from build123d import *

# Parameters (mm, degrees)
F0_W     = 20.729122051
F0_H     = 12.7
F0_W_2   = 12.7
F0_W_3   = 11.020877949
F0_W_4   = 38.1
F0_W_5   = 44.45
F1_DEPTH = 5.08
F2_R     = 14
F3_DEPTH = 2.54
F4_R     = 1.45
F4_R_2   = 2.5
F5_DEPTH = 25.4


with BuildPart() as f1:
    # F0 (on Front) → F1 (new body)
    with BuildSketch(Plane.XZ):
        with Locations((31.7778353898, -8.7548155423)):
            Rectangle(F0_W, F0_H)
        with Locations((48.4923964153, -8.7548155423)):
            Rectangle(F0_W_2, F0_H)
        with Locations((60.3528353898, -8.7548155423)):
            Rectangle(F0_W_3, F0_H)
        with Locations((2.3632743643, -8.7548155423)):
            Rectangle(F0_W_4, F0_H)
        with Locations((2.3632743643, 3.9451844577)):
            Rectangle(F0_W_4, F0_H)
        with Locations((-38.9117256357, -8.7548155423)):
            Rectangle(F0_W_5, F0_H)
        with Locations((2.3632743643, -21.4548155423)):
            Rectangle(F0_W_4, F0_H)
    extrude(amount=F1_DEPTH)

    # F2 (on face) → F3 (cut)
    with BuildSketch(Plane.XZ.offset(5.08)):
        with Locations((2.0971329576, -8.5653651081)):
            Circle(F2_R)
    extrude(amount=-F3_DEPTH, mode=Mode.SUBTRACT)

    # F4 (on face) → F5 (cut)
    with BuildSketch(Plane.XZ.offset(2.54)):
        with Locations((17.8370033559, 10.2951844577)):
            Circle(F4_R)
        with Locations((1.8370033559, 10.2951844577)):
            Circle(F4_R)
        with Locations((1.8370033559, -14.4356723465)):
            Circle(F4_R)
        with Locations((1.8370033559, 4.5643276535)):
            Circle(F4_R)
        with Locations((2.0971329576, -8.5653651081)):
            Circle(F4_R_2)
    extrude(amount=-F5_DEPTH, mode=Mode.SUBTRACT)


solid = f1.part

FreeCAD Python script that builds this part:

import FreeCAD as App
import Part
import Sketcher

V = App.Vector
Q = App.Units.Quantity

doc = App.newDocument("Part")
body = doc.addObject("PartDesign::Body", "Body")

# Sketch on XZ plane
sketch1 = body.newObject("Sketcher::SketchObject", "Sketch")
sketch1.AttachmentSupport = (doc.getObject("XZ_Plane"), [""])
sketch1.MapMode = "FlatFace"
sketch1.addGeometry([
    Part.LineSegment(V(66, -15, 0), V(66, -2, 0)),  # 0
    Part.LineSegment(V(66, -2, 0), V(21, -2, 0)),  # 1
    Part.LineSegment(V(21, -2, 0), V(21, 10, 0)),  # 2
    Part.LineSegment(V(21, 10, 0), V(-17, 10, 0)),  # 3
    Part.LineSegment(V(-17, 10, 0), V(-17, -2, 0)),  # 4
    Part.LineSegment(V(-17, -2, 0), V(-61, -2, 0)),  # 5
    Part.LineSegment(V(-61, -2, 0), V(-61, -15, 0)),  # 6
    Part.LineSegment(V(-61, -15, 0), V(-17, -15, 0)),  # 7
    Part.LineSegment(V(-17, -15, 0), V(-17, -28, 0)),  # 8
    Part.LineSegment(V(-17, -28, 0), V(21, -28, 0)),  # 9
    Part.LineSegment(V(21, -28, 0), V(21, -15, 0)),  # 10
    Part.LineSegment(V(21, -15, 0), V(66, -15, 0)),  # 11
], False)
sketch1.addConstraint([
    Sketcher.Constraint("Coincident", 0, 2, 1, 1),
    Sketcher.Constraint("Coincident", 1, 2, 2, 1),
    Sketcher.Constraint("Coincident", 2, 2, 3, 1),
    Sketcher.Constraint("Coincident", 3, 2, 4, 1),
    Sketcher.Constraint("Coincident", 4, 2, 5, 1),
    Sketcher.Constraint("Coincident", 5, 2, 6, 1),
    Sketcher.Constraint("Coincident", 6, 2, 7, 1),
    Sketcher.Constraint("Coincident", 7, 2, 8, 1),
    Sketcher.Constraint("Coincident", 8, 2, 9, 1),
    Sketcher.Constraint("Coincident", 9, 2, 10, 1),
    Sketcher.Constraint("Coincident", 10, 2, 11, 1),
    Sketcher.Constraint("Coincident", 11, 2, 0, 1),
    Sketcher.Constraint("Vertical", 0),
    Sketcher.Constraint("Horizontal", 1),
    Sketcher.Constraint("Vertical", 2),
    Sketcher.Constraint("Horizontal", 3),
    Sketcher.Constraint("Vertical", 4),
    Sketcher.Constraint("Horizontal", 5),
    Sketcher.Constraint("Vertical", 6),
    Sketcher.Constraint("Horizontal", 7),
    Sketcher.Constraint("Vertical", 8),
    Sketcher.Constraint("Horizontal", 9),
    Sketcher.Constraint("Vertical", 10),
    Sketcher.Constraint("Horizontal", 11),
    Sketcher.Constraint("Horizontal", 1, 2, 4, 2),
    Sketcher.Constraint("Horizontal", 7, 2, 10, 2),
    Sketcher.Constraint("Vertical", 4, 2, 7, 2),
    Sketcher.Constraint("Vertical", 2, 2, 9, 2),
    Sketcher.Constraint("Equal", 1, 5),
    Sketcher.Constraint("Equal", 0, 2),
    Sketcher.Constraint("Equal", 6, 8),
    Sketcher.Constraint("DistanceX", 3, 2, 3, 1, Q("1.5 in")),
    Sketcher.Constraint("DistanceY", 0, 1, 0, 2, Q("0.5 in")),
    Sketcher.Constraint("DistanceX", 5, 2, 0, 2, Q("5 in")),
    Sketcher.Constraint("DistanceX", -1, 1, 0, 2, 65.863274),
    Sketcher.Constraint("DistanceY", 0, 2, -1, 1, 2.404816),
])
pad1 = body.newObject("PartDesign::Pad", "Pad")
pad1.Profile = sketch1
pad1.Length = Q("0.2 in")

# Sketch on XZ plane
sketch2 = body.newObject("Sketcher::SketchObject", "Sketch001")
sketch2.AttachmentSupport = (doc.getObject("XZ_Plane"), [""])
sketch2.MapMode = "FlatFace"
sketch2.AttachmentOffset = App.Placement(V(0, 0, 0.2 * 25.4), App.Rotation())
sketch2.addGeometry(Part.Circle(V(2, -9, 0), V(0, 0, 1), 14), False)
sketch2.addConstraint([
    Sketcher.Constraint("Diameter", 0, 28.0),
    Sketcher.Constraint("DistanceX", -1, 1, 0, 3, 2.097133),
    Sketcher.Constraint("DistanceY", 0, 3, -1, 1, 8.565365),
])
pocket1 = body.newObject("PartDesign::Pocket", "Pocket")
pocket1.Profile = sketch2
pocket1.Length = Q("0.1 in")

# Sketch on XZ plane
sketch3 = body.newObject("Sketcher::SketchObject", "Sketch002")
sketch3.AttachmentSupport = (doc.getObject("XZ_Plane"), [""])
sketch3.MapMode = "FlatFace"
sketch3.AttachmentOffset = App.Placement(V(0, 0, 0.1 * 25.4), App.Rotation())
sketch3.addGeometry([
    Part.Circle(V(17.8, 10.3, 0), V(0, 0, 1), 1.4),  # 0
    Part.Circle(V(1.8, 10.3, 0), V(0, 0, 1), 1.4),  # 1
    Part.Circle(V(1.8, -14.4, 0), V(0, 0, 1), 1.4),  # 2
    Part.Circle(V(1.8, 4.6, 0), V(0, 0, 1), 1.4),  # 3
    Part.Circle(V(2.1, -8.6, 0), V(0, 0, 1), 2.5),  # 4
], False)
sketch3.addConstraint([
    Sketcher.Constraint("Equal", 0, 1),
    Sketcher.Constraint("Equal", 1, 2),
    Sketcher.Constraint("Equal", 2, 3),
    Sketcher.Constraint("Horizontal", 0, 3, 1, 3),
    Sketcher.Constraint("Vertical", 1, 3, 2, 3),
    Sketcher.Constraint("Vertical", 2, 3, 3, 3),
    Sketcher.Constraint("Diameter", 0, 2.9),
    Sketcher.Constraint("Diameter", 4, 5.0),
    Sketcher.Constraint("DistanceX", 1, 3, 0, 3, 16.0),
    Sketcher.Constraint("DistanceY", 2, 3, 3, 3, 19.0),
    Sketcher.Constraint("DistanceX", 2, 3, 4, 3, 0.26013),
    Sketcher.Constraint("DistanceY", 4, 3, 1, 3, 18.86055),
    Sketcher.Constraint("DistanceX", -1, 1, 0, 3, 17.837003),
    Sketcher.Constraint("DistanceY", -1, 1, 0, 3, 10.295184),
    Sketcher.Constraint("DistanceY", 2, 3, -1, 1, 14.435672),
])
pocket2 = body.newObject("PartDesign::Pocket", "Pocket001")
pocket2.Profile = sketch3
pocket2.Length = Q("1 in")

doc.recompute()
